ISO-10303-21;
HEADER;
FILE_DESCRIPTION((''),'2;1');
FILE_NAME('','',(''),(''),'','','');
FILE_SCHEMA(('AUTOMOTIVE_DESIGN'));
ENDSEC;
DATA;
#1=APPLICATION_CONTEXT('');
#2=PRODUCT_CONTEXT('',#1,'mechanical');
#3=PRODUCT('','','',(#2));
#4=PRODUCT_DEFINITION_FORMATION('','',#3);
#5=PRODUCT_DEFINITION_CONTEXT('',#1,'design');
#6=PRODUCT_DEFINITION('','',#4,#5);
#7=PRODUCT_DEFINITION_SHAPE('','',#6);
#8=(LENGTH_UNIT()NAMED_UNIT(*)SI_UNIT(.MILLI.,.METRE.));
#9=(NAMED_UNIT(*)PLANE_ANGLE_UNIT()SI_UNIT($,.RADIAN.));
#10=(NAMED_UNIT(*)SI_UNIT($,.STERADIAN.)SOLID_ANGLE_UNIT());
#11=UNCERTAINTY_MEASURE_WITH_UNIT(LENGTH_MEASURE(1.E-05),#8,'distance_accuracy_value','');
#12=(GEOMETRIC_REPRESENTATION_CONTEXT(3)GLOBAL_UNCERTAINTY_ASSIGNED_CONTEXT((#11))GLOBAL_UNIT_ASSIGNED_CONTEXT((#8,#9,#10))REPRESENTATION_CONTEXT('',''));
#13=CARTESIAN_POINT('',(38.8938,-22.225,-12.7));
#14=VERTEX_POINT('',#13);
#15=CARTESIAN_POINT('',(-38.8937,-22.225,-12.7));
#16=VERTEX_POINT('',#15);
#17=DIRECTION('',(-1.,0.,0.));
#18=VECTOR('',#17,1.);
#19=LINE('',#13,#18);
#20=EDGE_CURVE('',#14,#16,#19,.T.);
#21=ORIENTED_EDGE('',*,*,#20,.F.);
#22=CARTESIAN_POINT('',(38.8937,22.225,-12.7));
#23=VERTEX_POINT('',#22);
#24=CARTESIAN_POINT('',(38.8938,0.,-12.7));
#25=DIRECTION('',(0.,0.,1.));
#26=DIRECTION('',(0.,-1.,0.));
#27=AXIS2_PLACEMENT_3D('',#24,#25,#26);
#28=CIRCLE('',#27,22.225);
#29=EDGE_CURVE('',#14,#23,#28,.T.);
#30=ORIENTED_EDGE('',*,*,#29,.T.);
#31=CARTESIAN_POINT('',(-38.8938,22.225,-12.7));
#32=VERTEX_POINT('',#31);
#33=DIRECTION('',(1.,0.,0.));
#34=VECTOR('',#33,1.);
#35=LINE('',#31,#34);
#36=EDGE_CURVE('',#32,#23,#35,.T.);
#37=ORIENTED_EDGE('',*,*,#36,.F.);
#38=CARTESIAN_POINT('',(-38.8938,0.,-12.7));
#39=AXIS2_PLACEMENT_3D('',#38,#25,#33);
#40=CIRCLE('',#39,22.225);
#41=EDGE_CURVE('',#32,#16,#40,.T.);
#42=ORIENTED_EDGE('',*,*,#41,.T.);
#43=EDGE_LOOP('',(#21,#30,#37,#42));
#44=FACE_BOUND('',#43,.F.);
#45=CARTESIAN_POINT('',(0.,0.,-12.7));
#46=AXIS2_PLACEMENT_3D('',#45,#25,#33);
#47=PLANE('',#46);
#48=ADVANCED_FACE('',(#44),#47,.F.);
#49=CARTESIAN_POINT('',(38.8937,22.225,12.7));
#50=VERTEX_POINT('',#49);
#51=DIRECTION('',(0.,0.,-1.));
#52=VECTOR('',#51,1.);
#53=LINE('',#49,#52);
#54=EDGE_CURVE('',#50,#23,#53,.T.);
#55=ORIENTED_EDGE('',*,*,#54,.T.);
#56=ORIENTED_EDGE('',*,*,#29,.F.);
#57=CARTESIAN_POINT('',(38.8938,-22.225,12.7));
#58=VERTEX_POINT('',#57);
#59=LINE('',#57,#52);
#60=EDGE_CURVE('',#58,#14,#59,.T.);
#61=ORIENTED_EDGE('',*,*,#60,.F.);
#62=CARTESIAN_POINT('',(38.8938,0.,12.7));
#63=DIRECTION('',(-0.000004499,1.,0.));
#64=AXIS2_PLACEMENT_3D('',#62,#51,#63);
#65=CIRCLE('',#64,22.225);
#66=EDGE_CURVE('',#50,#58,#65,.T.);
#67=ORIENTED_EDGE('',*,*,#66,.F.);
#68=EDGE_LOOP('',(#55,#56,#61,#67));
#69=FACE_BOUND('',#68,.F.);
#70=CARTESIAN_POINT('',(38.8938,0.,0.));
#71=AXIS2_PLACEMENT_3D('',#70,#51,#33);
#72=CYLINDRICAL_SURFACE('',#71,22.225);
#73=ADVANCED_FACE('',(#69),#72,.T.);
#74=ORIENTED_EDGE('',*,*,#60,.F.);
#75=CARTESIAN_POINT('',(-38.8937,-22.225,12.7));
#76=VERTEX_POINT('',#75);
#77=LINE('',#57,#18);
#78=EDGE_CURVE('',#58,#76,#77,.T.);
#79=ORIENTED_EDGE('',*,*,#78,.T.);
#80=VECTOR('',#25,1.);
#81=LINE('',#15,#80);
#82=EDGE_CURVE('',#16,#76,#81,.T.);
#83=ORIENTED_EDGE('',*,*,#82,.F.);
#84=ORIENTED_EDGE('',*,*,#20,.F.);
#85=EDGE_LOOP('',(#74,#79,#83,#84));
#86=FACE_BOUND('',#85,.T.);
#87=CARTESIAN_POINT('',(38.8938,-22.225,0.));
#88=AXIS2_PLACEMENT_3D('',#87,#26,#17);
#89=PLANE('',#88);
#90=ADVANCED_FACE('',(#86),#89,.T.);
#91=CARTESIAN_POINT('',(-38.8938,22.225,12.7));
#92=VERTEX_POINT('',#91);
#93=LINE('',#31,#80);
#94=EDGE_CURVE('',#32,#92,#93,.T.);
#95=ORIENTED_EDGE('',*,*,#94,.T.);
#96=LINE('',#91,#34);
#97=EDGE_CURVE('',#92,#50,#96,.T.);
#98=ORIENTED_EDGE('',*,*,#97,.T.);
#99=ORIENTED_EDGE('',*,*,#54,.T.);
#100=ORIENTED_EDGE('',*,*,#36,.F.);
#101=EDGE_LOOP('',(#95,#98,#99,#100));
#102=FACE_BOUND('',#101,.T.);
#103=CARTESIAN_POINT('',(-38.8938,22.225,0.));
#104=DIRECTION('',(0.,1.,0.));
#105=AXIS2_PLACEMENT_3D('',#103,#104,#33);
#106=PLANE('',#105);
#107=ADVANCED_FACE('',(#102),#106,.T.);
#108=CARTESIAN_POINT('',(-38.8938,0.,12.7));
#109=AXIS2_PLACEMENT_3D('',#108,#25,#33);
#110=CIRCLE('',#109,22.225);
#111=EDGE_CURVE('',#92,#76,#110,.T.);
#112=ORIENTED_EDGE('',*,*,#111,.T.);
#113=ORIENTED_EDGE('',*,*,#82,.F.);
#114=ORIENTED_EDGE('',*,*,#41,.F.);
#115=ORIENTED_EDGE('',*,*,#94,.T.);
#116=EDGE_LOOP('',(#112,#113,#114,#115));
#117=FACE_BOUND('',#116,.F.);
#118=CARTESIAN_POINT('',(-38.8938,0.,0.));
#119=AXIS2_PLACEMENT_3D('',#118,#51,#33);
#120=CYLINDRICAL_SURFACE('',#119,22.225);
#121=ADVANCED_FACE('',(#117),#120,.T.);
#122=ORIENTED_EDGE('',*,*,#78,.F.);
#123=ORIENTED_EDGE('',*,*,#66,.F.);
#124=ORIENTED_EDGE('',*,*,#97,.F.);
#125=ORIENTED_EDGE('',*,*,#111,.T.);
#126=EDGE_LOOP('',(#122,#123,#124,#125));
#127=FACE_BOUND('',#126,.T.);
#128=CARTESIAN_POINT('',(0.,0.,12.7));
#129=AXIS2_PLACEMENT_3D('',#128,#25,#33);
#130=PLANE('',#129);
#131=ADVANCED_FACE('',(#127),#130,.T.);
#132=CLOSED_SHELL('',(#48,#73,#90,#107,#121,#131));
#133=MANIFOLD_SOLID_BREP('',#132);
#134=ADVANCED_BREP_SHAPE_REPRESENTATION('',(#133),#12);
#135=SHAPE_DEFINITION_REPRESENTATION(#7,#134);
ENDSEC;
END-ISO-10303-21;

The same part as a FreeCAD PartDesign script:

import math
import FreeCAD as App
import Part
import Sketcher

V = App.Vector
Q = App.Units.Quantity

doc = App.newDocument("Part")
body = doc.addObject("PartDesign::Body", "Body")

sketch1 = body.newObject("Sketcher::SketchObject", "Sketch")
sketch1.AttachmentSupport = (doc.getObject("XY_Plane"), [""])
sketch1.MapMode = "FlatFace"
sketch1.addGeometry(Part.LineSegment(V(38.8937, 22.225, 0), V(-38.8938, 22.225, 0)), False)
sketch1.addGeometry(Part.ArcOfCircle(Part.Circle(V(-38.8938, 0, 0), V(0, 0, 1), 22.225), math.radians(90), math.radians(270.000258)), False)
sketch1.addGeometry(Part.LineSegment(V(-38.8937, -22.225, 0), V(38.8938, -22.225, 0)), False)
sketch1.addGeometry(Part.ArcOfCircle(Part.Circle(V(38.8938, 0, 0), V(0, 0, 1), 22.225), math.radians(-90), math.radians(90.000258)), False)
sketch1.addConstraint(Sketcher.Constraint("Tangent", 0, 2, 1, 1))
sketch1.addConstraint(Sketcher.Constraint("Tangent", 1, 2, 2, 1))
sketch1.addConstraint(Sketcher.Constraint("Tangent", 2, 2, 3, 1))
sketch1.addConstraint(Sketcher.Constraint("Tangent", 3, 2, 0, 1))
sketch1.addConstraint(Sketcher.Constraint("Horizontal", 0))
sketch1.addConstraint(Sketcher.Constraint("Horizontal", 2))
sketch1.addConstraint(Sketcher.Constraint("Symmetric", 1, 3, 3, 3, -1, 1))
sketch1.addConstraint(Sketcher.Constraint("Radius", 1, Q("0.875 in")))
sketch1.addConstraint(Sketcher.Constraint("DistanceX", 0, 2, 0, 1, Q("3.0625 in")))
pad1 = body.newObject("PartDesign::Pad", "Pad")
pad1.Profile = sketch1
pad1.Length = Q("1 in")
pad1.Midplane = True

doc.recompute()
